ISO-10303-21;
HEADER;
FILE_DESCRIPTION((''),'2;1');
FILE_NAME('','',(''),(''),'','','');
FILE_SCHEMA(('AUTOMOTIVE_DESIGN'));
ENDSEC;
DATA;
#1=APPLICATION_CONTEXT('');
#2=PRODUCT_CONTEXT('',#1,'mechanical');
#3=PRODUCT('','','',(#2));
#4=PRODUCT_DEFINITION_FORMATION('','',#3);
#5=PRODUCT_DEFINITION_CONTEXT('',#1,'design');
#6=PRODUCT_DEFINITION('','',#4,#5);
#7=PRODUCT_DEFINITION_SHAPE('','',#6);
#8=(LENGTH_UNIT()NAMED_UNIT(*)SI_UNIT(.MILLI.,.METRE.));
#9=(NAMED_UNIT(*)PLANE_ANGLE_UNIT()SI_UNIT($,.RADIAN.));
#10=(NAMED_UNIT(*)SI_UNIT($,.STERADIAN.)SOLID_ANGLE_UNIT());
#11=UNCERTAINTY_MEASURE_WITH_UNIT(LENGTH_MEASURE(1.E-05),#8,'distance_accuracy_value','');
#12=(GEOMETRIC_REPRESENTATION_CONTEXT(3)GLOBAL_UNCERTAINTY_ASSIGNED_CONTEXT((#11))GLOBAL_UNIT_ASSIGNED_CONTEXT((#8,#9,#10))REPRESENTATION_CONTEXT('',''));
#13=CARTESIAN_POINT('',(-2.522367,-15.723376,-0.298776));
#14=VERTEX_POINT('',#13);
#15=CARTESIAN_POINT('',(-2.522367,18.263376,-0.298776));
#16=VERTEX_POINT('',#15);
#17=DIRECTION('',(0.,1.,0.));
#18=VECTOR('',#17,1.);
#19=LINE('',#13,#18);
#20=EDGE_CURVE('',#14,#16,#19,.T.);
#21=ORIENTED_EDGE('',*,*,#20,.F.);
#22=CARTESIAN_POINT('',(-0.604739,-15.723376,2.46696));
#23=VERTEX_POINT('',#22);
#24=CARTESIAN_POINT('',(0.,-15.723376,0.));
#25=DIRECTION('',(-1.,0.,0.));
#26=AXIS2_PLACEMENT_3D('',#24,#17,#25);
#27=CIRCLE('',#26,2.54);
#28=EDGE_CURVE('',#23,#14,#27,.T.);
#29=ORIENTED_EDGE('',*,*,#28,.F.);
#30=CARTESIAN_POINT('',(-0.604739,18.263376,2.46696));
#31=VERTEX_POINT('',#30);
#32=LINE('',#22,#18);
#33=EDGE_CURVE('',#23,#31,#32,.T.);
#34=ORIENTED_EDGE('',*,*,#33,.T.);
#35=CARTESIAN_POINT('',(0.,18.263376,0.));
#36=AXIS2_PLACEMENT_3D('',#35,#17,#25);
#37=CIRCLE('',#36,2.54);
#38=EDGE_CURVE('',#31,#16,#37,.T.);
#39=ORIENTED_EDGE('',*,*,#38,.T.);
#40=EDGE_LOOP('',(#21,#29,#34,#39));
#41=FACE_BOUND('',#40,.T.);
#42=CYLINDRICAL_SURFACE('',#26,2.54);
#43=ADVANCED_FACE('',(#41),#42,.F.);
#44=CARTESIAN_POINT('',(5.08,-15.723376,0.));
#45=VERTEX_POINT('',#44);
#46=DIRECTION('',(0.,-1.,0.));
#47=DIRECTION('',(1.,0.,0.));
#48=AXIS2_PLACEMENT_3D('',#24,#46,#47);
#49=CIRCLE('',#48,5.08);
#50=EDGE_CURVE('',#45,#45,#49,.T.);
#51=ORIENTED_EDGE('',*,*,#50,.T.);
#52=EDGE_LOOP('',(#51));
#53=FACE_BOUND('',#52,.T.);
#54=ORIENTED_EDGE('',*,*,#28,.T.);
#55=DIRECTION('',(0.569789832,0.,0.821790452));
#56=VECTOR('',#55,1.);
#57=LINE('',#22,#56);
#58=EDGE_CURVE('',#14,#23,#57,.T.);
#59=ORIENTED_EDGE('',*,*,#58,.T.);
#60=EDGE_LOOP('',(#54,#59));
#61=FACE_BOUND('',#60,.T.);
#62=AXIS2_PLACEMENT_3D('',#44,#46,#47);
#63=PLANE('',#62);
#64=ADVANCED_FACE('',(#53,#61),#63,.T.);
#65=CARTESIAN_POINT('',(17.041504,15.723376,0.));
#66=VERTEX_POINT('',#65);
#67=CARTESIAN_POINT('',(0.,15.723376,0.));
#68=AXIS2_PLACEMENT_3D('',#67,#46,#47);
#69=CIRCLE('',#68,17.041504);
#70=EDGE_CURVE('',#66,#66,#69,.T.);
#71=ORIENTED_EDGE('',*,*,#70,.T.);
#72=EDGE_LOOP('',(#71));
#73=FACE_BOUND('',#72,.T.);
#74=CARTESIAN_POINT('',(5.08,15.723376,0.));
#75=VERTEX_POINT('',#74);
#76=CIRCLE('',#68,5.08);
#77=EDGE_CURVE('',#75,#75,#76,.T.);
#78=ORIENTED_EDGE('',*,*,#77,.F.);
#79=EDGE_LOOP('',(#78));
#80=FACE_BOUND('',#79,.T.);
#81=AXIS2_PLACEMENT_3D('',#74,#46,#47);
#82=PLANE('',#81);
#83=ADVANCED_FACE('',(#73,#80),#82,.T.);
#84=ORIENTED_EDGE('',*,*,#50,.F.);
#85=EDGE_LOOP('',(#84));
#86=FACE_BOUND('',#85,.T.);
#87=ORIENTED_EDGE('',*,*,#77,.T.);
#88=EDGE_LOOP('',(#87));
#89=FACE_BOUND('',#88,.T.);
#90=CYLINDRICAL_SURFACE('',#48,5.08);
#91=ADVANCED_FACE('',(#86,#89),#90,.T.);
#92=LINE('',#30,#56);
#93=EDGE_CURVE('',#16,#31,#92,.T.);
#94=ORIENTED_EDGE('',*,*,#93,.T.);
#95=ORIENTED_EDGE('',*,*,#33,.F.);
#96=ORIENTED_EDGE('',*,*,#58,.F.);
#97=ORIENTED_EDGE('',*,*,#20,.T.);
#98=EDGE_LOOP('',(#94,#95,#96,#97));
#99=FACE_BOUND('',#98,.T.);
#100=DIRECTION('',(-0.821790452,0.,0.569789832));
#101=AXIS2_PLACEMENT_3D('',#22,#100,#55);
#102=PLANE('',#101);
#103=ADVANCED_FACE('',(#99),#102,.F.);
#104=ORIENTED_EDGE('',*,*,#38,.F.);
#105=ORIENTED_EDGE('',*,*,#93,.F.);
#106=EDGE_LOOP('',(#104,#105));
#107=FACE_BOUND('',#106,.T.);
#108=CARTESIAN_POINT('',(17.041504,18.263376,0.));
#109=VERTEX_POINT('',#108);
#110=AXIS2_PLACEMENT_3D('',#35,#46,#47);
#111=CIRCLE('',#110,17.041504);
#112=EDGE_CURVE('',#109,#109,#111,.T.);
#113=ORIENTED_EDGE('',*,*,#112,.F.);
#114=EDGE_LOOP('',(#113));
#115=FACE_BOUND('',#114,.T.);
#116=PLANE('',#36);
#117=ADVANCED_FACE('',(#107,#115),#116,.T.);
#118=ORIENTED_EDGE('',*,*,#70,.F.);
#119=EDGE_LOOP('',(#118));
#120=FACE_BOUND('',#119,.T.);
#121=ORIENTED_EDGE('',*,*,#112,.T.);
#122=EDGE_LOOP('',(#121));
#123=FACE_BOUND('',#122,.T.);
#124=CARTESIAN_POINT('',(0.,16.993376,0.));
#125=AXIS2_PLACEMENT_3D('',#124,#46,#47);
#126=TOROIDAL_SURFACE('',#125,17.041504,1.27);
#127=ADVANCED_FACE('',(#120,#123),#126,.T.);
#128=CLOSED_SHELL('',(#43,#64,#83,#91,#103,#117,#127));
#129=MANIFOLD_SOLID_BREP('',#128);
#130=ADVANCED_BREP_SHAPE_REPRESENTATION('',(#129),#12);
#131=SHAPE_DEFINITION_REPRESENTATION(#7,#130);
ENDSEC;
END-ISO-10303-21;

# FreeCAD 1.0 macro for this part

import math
import FreeCAD as App
import Part
import Sketcher

V = App.Vector
Q = App.Units.Quantity

doc = App.newDocument("Part")
body = doc.addObject("PartDesign::Body", "Body")

# Sketch on XY plane
sketch1 = doc.addObject("Sketcher::SketchObject", "Sketch")
body.addObject(sketch1)
sketch1.AttachmentSupport = (doc.XY_Plane, [""])
sketch1.MapMode = "FlatFace"
sketch1.addGeometry(Part.LineSegment(V(0, 18.3, 0), V(0, -15.7, 0)), False)
sketch1.addGeometry(Part.LineSegment(V(0, -15.7, 0), V(5.1, -15.7, 0)), False)
sketch1.addGeometry(Part.LineSegment(V(5.1, -15.7, 0), V(5.1, 15.7, 0)), False)
sketch1.addGeometry(Part.LineSegment(V(5.1, 15.7, 0), V(17, 15.7, 0)), False)
sketch1.addGeometry(Part.ArcOfCircle(Part.Circle(V(17, 17, 0), V(0, 0, 1), 1.3), math.radians(-90), math.radians(90)), False)
sketch1.addGeometry(Part.LineSegment(V(17, 18.3, 0), V(0, 18.3, 0)), False)
sketch1.addConstraint(Sketcher.Constraint("Coincident", 0, 2, 1, 1))
sketch1.addConstraint(Sketcher.Constraint("Coincident", 1, 2, 2, 1))
sketch1.addConstraint(Sketcher.Constraint("Coincident", 2, 2, 3, 1))
sketch1.addConstraint(Sketcher.Constraint("Tangent", 3, 2, 4, 1))
sketch1.addConstraint(Sketcher.Constraint("Tangent", 4, 2, 5, 1))
sketch1.addConstraint(Sketcher.Constraint("Coincident", 5, 2, 0, 1))
sketch1.addConstraint(Sketcher.Constraint("Vertical", 0))
sketch1.addConstraint(Sketcher.Constraint("Horizontal", 1))
sketch1.addConstraint(Sketcher.Constraint("Vertical", 2))
sketch1.addConstraint(Sketcher.Constraint("Horizontal", 3))
sketch1.addConstraint(Sketcher.Constraint("Horizontal", 5))
sketch1.addConstraint(Sketcher.Constraint("PointOnObject", 0, 2, -2))
sketch1.addConstraint(Sketcher.Constraint("Radius", 4, Q("0.05 in")))
sketch1.addConstraint(Sketcher.Constraint("DistanceX", 1, 1, 1, 2, Q("0.2 in")))
sketch1.addConstraint(Sketcher.Constraint("DistanceX", 3, 1, 3, 2, Q("11.961504 mm")))
sketch1.addConstraint(Sketcher.Constraint("DistanceY", 0, 2, 0, 1, Q("33.986753 mm")))
sketch1.addConstraint(Sketcher.Constraint("DistanceY", -1, 1, 4, 3, Q("16.993376 mm")))
revolution = doc.addObject("PartDesign::Revolution", "Revolution")
body.addObject(revolution)
revolution.Profile = sketch1
revolution.ReferenceAxis = (sketch1, ["V_Axis"])
revolution.Angle = 360

# Sketch on XZ plane
sketch2 = doc.addObject("Sketcher::SketchObject", "Sketch001")
body.addObject(sketch2)
sketch2.AttachmentSupport = (doc.XZ_Plane, [""])
sketch2.MapMode = "FlatFace"
sketch2.AttachmentOffset = App.Placement(V(0, 0, -18.263376), App.Rotation())
sketch2.addGeometry(Part.LineSegment(V(-2.5, -0.3, 0), V(-0.6, 2.5, 0)), False)
sketch2.addGeometry(Part.ArcOfCircle(Part.Circle(V(0, 0, 0), V(0, 0, 1), 2.5), math.radians(-173), math.radians(104)), False)
sketch2.addConstraint(Sketcher.Constraint("Coincident", 0, 1, 1, 1))
sketch2.addConstraint(Sketcher.Constraint("Coincident", 1, 2, 0, 2))
sketch2.addConstraint(Sketcher.Constraint("Coincident", 1, 3, -1, 1))
sketch2.addConstraint(Sketcher.Constraint("Radius", 1, Q("0.1 in")))
sketch2.addConstraint(Sketcher.Constraint("Distance", 0, Q("0.1325 in")))
sketch2.addConstraint(Sketcher.Constraint("DistanceX", 1, 2, -1, 1, Q("0.604739 mm")))
pocket1 = doc.addObject("PartDesign::Pocket", "Pocket")
body.addObject(pocket1)
pocket1.Profile = sketch2
pocket1.Type = "ThroughAll"
pocket1.Reversed = True

doc.recompute()
